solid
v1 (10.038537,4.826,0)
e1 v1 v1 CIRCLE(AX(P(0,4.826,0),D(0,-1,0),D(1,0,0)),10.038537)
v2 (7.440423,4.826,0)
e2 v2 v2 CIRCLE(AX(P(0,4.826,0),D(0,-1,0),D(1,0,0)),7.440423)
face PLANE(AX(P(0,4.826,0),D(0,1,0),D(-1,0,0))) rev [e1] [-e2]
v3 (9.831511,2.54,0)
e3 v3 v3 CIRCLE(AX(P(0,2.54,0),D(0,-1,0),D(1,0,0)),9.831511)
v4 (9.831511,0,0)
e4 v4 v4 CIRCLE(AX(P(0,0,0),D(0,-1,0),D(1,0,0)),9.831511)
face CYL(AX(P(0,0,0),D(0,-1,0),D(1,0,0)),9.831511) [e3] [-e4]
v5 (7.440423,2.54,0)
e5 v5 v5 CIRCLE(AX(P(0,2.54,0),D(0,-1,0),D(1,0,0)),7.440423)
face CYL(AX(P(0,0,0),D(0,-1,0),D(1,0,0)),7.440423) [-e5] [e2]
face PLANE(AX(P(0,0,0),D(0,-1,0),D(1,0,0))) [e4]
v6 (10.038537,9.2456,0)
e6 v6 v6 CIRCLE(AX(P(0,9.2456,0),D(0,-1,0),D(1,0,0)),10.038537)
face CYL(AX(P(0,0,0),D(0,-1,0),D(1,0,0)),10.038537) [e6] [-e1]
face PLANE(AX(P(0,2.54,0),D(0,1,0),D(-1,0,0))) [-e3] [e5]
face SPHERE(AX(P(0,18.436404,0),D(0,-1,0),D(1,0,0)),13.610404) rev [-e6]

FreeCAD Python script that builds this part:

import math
import FreeCAD as App
import Part
import Sketcher
Q = App.Units.Quantity

doc = App.newDocument("Part")
body = doc.addObject("PartDesign::Body", "Body")

sketch1 = body.newObject("Sketcher::SketchObject", "Sketch")
sketch1.AttachmentSupport = (doc.getObject("XY_Plane"), [""])
sketch1.MapMode = "FlatFace"
sketch1.addGeometry([
    Part.LineSegment(App.Vector(7.4, 2.5, 0), App.Vector(7.4, 4.8, 0)),
    Part.LineSegment(App.Vector(7.4, 4.8, 0), App.Vector(10, 4.8, 0)),
    Part.LineSegment(App.Vector(10, 4.8, 0), App.Vector(10, 9.2, 0)),
    Part.ArcOfCircle(Part.Circle(App.Vector(0, 18.4, 0), App.Vector(0, 0, 1), 13.6), math.radians(-90), math.radians(-42)),
    Part.LineSegment(App.Vector(0, 4.8, 0), App.Vector(0, 0, 0)),
    Part.LineSegment(App.Vector(0, 0, 0), App.Vector(9.8, 0, 0)),
    Part.LineSegment(App.Vector(9.8, 0, 0), App.Vector(9.8, 2.5, 0)),
    Part.LineSegment(App.Vector(9.8, 2.5, 0), App.Vector(7.4, 2.5, 0)),
], False)
sketch1.addConstraint([
    Sketcher.Constraint("Coincident", 0, 2, 1, 1),
    Sketcher.Constraint("Coincident", 1, 2, 2, 1),
    Sketcher.Constraint("Coincident", 2, 2, 3, 2),
    Sketcher.Constraint("Coincident", 3, 1, 4, 1),
    Sketcher.Constraint("Coincident", 4, 2, 5, 1),
    Sketcher.Constraint("Coincident", 5, 2, 6, 1),
    Sketcher.Constraint("Coincident", 6, 2, 7, 1),
    Sketcher.Constraint("Coincident", 7, 2, 0, 1),
    Sketcher.Constraint("Vertical", 0),
    Sketcher.Constraint("Horizontal", 1),
    Sketcher.Constraint("Vertical", 2),
    Sketcher.Constraint("Vertical", 4),
    Sketcher.Constraint("Horizontal", 5),
    Sketcher.Constraint("Vertical", 6),
    Sketcher.Constraint("Horizontal", 7),
    Sketcher.Constraint("Coincident", 4, 2, -1, 1),
    Sketcher.Constraint("PointOnObject", 3, 3, -2),
    Sketcher.Constraint("Horizontal", 1, 2, 3, 1),
    Sketcher.Constraint("DistanceY", 6, 1, 6, 2, Q("0.1 in")),
    Sketcher.Constraint("DistanceY", 0, 1, 0, 2, Q("0.09 in")),
    Sketcher.Constraint("DistanceY", 2, 1, 2, 2, Q("0.174 in")),
    Sketcher.Constraint("Radius", 3, Q("13.610404 mm")),
    Sketcher.Constraint("DistanceX", 5, 1, 5, 2, Q("9.831511 mm")),
    Sketcher.Constraint("DistanceX", 1, 1, 1, 2, Q("2.598114 mm")),
])
revolution = body.newObject("PartDesign::Revolution", "Revolution")
revolution.Profile = sketch1
revolution.ReferenceAxis = (sketch1, ["V_Axis"])
revolution.Angle = 360

doc.recompute()
